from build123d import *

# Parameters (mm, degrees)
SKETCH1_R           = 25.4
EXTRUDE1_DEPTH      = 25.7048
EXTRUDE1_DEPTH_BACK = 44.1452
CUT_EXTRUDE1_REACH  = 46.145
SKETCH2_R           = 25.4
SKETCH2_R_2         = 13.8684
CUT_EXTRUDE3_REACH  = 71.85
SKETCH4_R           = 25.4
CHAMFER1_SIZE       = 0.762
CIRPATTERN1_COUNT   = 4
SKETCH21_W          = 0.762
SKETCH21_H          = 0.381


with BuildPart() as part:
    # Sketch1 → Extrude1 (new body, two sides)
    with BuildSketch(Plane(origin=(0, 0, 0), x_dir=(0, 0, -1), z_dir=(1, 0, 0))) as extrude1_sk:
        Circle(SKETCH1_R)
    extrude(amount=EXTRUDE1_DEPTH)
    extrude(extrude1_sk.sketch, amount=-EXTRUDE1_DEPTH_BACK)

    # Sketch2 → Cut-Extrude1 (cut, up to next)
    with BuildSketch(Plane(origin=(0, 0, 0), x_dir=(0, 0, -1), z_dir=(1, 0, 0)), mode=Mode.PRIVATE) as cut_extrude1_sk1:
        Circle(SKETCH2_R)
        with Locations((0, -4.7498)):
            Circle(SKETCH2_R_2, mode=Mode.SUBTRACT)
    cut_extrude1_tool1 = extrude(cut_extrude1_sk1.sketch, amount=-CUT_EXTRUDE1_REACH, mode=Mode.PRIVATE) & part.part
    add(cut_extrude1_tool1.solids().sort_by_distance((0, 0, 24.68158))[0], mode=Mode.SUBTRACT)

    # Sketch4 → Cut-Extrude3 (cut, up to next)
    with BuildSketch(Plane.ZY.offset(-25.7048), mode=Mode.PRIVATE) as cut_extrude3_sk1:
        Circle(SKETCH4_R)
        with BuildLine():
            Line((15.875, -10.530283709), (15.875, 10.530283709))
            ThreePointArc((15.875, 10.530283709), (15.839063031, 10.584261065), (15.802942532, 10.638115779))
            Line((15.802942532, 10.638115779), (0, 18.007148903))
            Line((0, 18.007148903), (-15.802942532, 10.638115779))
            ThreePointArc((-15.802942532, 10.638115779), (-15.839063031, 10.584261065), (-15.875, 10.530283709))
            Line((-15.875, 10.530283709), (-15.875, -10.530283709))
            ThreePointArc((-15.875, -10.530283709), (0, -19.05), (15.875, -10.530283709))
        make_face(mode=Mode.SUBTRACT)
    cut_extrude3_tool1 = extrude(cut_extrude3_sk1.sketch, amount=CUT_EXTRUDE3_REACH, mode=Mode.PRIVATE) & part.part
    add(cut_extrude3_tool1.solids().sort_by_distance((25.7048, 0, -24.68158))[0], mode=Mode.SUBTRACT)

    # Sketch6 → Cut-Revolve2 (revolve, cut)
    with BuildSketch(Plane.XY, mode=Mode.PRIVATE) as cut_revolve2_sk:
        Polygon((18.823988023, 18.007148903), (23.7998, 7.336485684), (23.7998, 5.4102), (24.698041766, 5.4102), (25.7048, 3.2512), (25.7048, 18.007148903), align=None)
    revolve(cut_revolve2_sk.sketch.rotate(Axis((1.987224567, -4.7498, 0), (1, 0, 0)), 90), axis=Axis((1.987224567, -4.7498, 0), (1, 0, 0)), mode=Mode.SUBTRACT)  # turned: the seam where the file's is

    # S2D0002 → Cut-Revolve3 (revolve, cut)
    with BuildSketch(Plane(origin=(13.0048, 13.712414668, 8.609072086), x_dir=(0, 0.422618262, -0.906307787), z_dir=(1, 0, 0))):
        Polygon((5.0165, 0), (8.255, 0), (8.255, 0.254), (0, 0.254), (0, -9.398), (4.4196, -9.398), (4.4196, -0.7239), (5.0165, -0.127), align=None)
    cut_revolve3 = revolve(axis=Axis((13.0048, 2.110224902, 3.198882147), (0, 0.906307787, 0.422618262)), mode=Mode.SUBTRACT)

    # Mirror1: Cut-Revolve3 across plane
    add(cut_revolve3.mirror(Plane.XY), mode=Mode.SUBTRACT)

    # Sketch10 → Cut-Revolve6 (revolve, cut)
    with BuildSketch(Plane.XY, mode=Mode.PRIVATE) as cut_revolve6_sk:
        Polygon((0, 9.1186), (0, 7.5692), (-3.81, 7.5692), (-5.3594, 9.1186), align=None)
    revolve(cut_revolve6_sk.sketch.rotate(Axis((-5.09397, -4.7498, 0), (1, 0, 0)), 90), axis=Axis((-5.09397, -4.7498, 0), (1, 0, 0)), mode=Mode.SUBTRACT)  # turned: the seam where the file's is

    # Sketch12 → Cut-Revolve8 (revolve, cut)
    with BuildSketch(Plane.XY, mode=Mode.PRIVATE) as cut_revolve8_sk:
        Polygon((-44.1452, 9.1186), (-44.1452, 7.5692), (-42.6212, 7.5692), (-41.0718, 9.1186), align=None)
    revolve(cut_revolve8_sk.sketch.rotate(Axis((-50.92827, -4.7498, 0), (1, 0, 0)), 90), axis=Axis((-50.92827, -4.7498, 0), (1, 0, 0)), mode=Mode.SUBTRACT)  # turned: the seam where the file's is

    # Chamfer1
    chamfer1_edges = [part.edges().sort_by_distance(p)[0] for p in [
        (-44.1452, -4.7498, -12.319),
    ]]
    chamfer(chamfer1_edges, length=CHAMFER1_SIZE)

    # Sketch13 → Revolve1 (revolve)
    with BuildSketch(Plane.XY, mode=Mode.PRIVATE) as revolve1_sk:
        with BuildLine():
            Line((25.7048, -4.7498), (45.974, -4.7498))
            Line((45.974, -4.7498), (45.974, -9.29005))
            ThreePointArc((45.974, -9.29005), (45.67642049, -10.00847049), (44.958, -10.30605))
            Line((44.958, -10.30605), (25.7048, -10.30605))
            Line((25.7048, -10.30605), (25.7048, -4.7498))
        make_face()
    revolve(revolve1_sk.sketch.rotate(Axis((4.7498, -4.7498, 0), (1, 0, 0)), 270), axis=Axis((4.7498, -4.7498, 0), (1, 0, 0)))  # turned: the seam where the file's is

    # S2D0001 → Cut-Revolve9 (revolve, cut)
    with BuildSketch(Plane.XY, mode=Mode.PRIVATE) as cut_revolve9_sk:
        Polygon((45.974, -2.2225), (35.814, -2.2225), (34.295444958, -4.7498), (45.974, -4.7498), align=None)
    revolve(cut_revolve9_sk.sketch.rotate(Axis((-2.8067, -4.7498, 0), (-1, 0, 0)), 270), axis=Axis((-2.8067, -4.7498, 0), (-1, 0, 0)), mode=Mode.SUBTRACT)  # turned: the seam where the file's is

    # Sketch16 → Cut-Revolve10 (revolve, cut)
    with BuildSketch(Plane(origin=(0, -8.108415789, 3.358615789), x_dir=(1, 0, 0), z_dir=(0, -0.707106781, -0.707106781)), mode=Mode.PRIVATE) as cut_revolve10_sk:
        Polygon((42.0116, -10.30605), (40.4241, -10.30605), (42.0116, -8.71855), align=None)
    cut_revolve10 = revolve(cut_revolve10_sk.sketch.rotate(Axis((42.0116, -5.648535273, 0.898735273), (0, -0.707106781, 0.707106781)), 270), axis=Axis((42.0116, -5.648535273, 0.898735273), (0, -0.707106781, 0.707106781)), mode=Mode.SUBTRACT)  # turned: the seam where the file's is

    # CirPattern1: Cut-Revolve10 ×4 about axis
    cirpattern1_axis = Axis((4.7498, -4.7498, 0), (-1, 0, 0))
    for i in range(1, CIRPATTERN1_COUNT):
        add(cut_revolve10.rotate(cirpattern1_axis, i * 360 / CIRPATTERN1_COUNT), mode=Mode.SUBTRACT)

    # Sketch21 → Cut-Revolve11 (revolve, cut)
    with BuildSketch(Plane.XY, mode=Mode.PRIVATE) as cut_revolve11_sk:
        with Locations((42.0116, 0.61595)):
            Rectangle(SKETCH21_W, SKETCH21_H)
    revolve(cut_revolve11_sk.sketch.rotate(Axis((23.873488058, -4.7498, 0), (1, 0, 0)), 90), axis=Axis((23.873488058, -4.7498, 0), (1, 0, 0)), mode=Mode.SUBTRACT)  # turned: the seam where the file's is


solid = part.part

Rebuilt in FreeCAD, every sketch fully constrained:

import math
import FreeCAD as App
import Part
import Sketcher
Q = App.Units.Quantity


def edges_at(feature, points):
    """Names of the edges that pass closest to the given points."""
    edges = feature.Shape.Edges
    near = lambda p: min(range(len(edges)), key=lambda i: edges[i].distToShape(Part.Vertex(*p))[0])
    return sorted({f"Edge{near(p) + 1}" for p in points})


def add_polygon(sketch, points):
    """Adds a closed chain of lines whose ends are joined by coincident constraints."""
    first, n = sketch.GeometryCount, len(points)
    for a, b in zip(points, points[1:] + points[:1]):
        sketch.addGeometry(Part.LineSegment(App.Vector(*a, 0), App.Vector(*b, 0)), False)
    for i in range(n):
        sketch.addConstraint(Sketcher.Constraint("Coincident", first + i, 2, first + (i + 1) % n, 1))

doc = App.newDocument("Part")
body = doc.addObject("PartDesign::Body", "Body")

sketch1 = body.newObject("Sketcher::SketchObject", "Sketch")
sketch1.AttachmentSupport = (doc.getObject("YZ_Plane"), [""])
sketch1.MapMode = "FlatFace"
sketch1.addGeometry(Part.Circle(App.Vector(0, 0, 0), App.Vector(0, 0, 1), 25.4), False)
sketch1.addConstraint([
    Sketcher.Constraint("Coincident", 0, 3, -1, 1),
    Sketcher.Constraint("Diameter", 0, Q("2 in")),
])
pad1 = body.newObject("PartDesign::Pad", "Pad")
pad1.Profile = sketch1
pad1.Type = "TwoLengths"
pad1.Length = Q("1.012 in")
pad1.Length2 = Q("1.738 in")

sketch2 = body.newObject("Sketcher::SketchObject", "Sketch001")
sketch2.AttachmentSupport = (doc.getObject("YZ_Plane"), [""])
sketch2.MapMode = "FlatFace"
sketch2.addGeometry([
    Part.Circle(App.Vector(0, 0, 0), App.Vector(0, 0, 1), 25.4),
    Part.Circle(App.Vector(-4.7498, 0, 0), App.Vector(0, 0, 1), 13.8684),
], False)
sketch2.addConstraint([
    Sketcher.Constraint("Coincident", 0, 3, -1, 1),
    Sketcher.Constraint("PointOnObject", 1, 3, -1),
    Sketcher.Constraint("Diameter", 0, Q("2 in")),
    Sketcher.Constraint("Diameter", 1, Q("1.092 in")),
    Sketcher.Constraint("DistanceX", 1, 3, -1, 1, Q("0.187 in")),
])
pocket1 = body.newObject("PartDesign::Pocket", "Pocket")
pocket1.Profile = sketch2
pocket1.Type = "UpToFirst"

sketch3 = body.newObject("Sketcher::SketchObject", "Sketch002")
sketch3.AttachmentSupport = (doc.getObject("YZ_Plane"), [""])
sketch3.MapMode = "FlatFace"
sketch3.AttachmentOffset = App.Placement(App.Vector(0, 0, 1.012 * 25.4), App.Rotation())
sketch3.addGeometry([
    Part.Circle(App.Vector(0, 0, 0), App.Vector(0, 0, 1), 25.4),
    Part.LineSegment(App.Vector(10.530284, 15.875, 0), App.Vector(-10.530284, 15.875, 0)),
    Part.ArcOfCircle(Part.Circle(App.Vector(0, 0, 0), App.Vector(0, 0, 1), 19.05), math.radians(123.55731), math.radians(236.44269)),
    Part.LineSegment(App.Vector(-10.530284, -15.875, 0), App.Vector(10.530284, -15.875, 0)),
    Part.ArcOfCircle(Part.Circle(App.Vector(-0.000006, 0.000009, 0), App.Vector(0, 0, 1), 19.050011), math.radians(-56.44269), math.radians(-56.052621)),
    Part.LineSegment(App.Vector(10.638116, -15.802943, 0), App.Vector(18.007149, 0, 0)),
    Part.LineSegment(App.Vector(18.007149, 0, 0), App.Vector(10.638116, 15.802943, 0)),
    Part.ArcOfCircle(Part.Circle(App.Vector(-0.000006, -0.000009, 0), App.Vector(0, 0, 1), 19.050011), math.radians(56.052621), math.radians(56.44269)),
], False)
sketch3.addConstraint([
    Sketcher.Constraint("Coincident", 1, 2, 2, 1),
    Sketcher.Constraint("Coincident", 2, 2, 3, 1),
    Sketcher.Constraint("Coincident", 3, 2, 4, 1),
    Sketcher.Constraint("Coincident", 4, 2, 5, 1),
    Sketcher.Constraint("Coincident", 5, 2, 6, 1),
    Sketcher.Constraint("Coincident", 6, 2, 7, 1),
    Sketcher.Constraint("Coincident", 7, 2, 1, 1),
    Sketcher.Constraint("Horizontal", 1),
    Sketcher.Constraint("Horizontal", 3),
    Sketcher.Constraint("Coincident", 0, 3, -1, 1),
    Sketcher.Constraint("Coincident", 2, 3, -1, 1),
    Sketcher.Constraint("Equal", 4, 7),
    Sketcher.Constraint("Symmetric", 1, 2, 3, 2, -1, 1),
    Sketcher.Constraint("Symmetric", 4, 3, 7, 3, -1),
    Sketcher.Constraint("PointOnObject", 5, 2, -1),
    Sketcher.Constraint("Vertical", 4, 2, 6, 2),
    Sketcher.Constraint("Diameter", 0, Q("2 in")),
    Sketcher.Constraint("Radius", 2, Q("0.75 in")),
    Sketcher.Constraint("Angle", 5, Q("65 deg")),
    Sketcher.Constraint("DistanceY", 2, 2, 1, 2, Q("1.25 in")),
    Sketcher.Constraint("Radius", 4, 19.050011),
    Sketcher.Constraint("DistanceX", -1, 1, 5, 2, 18.007149),
    Sketcher.Constraint("DistanceY", 4, 3, 1, 2, 15.874991),
])
pocket2 = body.newObject("PartDesign::Pocket", "Pocket001")
pocket2.Profile = sketch3
pocket2.Type = "UpToFirst"

sketch4 = body.newObject("Sketcher::SketchObject", "Sketch003")
sketch4.AttachmentSupport = (doc.getObject("XY_Plane"), [""])
sketch4.MapMode = "FlatFace"
add_polygon(sketch4, [(18.823988, 18.007149), (23.7998, 7.336486), (23.7998, 5.4102), (24.698042, 5.4102), (25.7048, 3.2512), (25.7048, 18.007149)])
sketch4.addGeometry(Part.LineSegment(App.Vector(18.823988, -4.7498, 0), App.Vector(25.7048, -4.7498, 0)), True)
sketch4.addConstraint([
    Sketcher.Constraint("Vertical", 1),
    Sketcher.Constraint("Horizontal", 2),
    Sketcher.Constraint("Vertical", 4),
    Sketcher.Constraint("Horizontal", 5),
    Sketcher.Constraint("Horizontal", 6),
    Sketcher.Constraint("Parallel", 0, 3),
    Sketcher.Constraint("Vertical", 5, 2, 6, 1),
    Sketcher.Constraint("Vertical", 4, 2, 6, 2),
    Sketcher.Constraint("Angle", 0, Q("-65 deg")),
    Sketcher.Constraint("DistanceY", 6, 1, 1, 2, Q("0.4 in")),
    Sketcher.Constraint("DistanceX", -1, 1, 0, 2, Q("0.937 in")),
    Sketcher.Constraint("DistanceY", -1, 1, 1, 2, Q("0.213 in")),
    Sketcher.Constraint("DistanceX", -1, 1, 3, 2, Q("1.012 in")),
    Sketcher.Constraint("DistanceY", -1, 1, 3, 2, Q("0.128 in")),
    Sketcher.Constraint("DistanceX", 5, 2, 5, 1, 6.880812),
    Sketcher.Constraint("DistanceY", 4, 1, 4, 2, 14.755949),
])
groove = body.newObject("PartDesign::Groove", "Groove")
groove.Profile = sketch4
groove.ReferenceAxis = (sketch4, ["Axis0"])
groove.Angle = 360

sketch5 = body.newObject("Sketcher::SketchObject", "Sketch004")
sketch5.AttachmentSupport = (doc.getObject("YZ_Plane"), [""])
sketch5.MapMode = "FlatFace"
sketch5.AttachmentOffset = App.Placement(App.Vector(0, 0, 0.512 * 25.4), App.Rotation())
add_polygon(sketch5, [(15.832479, 4.062579), (17.201128, 1.127501), (17.431331, 1.234846), (13.942617, 8.716417), (5.194934, 4.637306), (7.062738, 0.631788), (14.924142, 4.297621), (15.717378, 4.008907)])
sketch5.addGeometry(Part.LineSegment(App.Vector(5.194934, 4.637306, 0), App.Vector(13.942617, 8.716417, 0)), True)
sketch5.addConstraint([
    Sketcher.Constraint("Coincident", 8, 1, 3, 2),
    Sketcher.Constraint("Coincident", 8, 2, 2, 2),
    Sketcher.Constraint("Perpendicular", 0, 1),
    Sketcher.Constraint("Perpendicular", 1, 2),
    Sketcher.Constraint("Perpendicular", 2, 3),
    Sketcher.Constraint("Perpendicular", 3, 4),
    Sketcher.Constraint("Perpendicular", 4, 5),
    Sketcher.Constraint("Parallel", 5, 7),
    Sketcher.Constraint("Angle", 0, Q("-65 deg")),
    Sketcher.Constraint("Angle", 6, Q("-20 deg")),
    Sketcher.Constraint("Distance", 1, Q("0.01 in")),
    Sketcher.Constraint("Distance", 3, Q("0.38 in")),
    Sketcher.Constraint("Distance", 2, Q("0.325 in")),
    Sketcher.Constraint("Distance", 4, Q("0.174 in")),
    Sketcher.Constraint("Distance", 7, Q("0.005 in")),
    Sketcher.Constraint("Distance", 0, Q("0.1275 in")),
    Sketcher.Constraint("DistanceY", -1, 1, 0, 2, 1.127501),
    Sketcher.Constraint("DistanceX", -1, 1, 0, 2, 17.201128),
])
groove2 = body.newObject("PartDesign::Groove", "Groove001")
groove2.Profile = sketch5
groove2.ReferenceAxis = (sketch5, ["Axis0"])
groove2.Angle = 360
doc.recompute()

mirrored = body.newObject("PartDesign::Mirrored", "Mirrored")
mirrored.Originals = [groove2]
mirrored.MirrorPlane = (doc.getObject("XY_Plane"), [""])
body.Tip = mirrored

sketch6 = body.newObject("Sketcher::SketchObject", "Sketch005")
sketch6.AttachmentSupport = (doc.getObject("XY_Plane"), [""])
sketch6.MapMode = "FlatFace"
add_polygon(sketch6, [(0, 7.5692), (0, 9.1186), (-5.3594, 9.1186), (-3.81, 7.5692)])
sketch6.addGeometry(Part.LineSegment(App.Vector(-5.3594, -4.7498, 0), App.Vector(0, -4.7498, 0)), True)
sketch6.addConstraint([
    Sketcher.Constraint("Vertical", 0),
    Sketcher.Constraint("Horizontal", 1),
    Sketcher.Constraint("Horizontal", 3),
    Sketcher.Constraint("Horizontal", 4),
    Sketcher.Constraint("PointOnObject", 0, 2, -2),
    Sketcher.Constraint("PointOnObject", 4, 2, -2),
    Sketcher.Constraint("Vertical", 1, 2, 4, 1),
    Sketcher.Constraint("Angle", 2, Q("-45 deg")),
    Sketcher.Constraint("DistanceX", 3, 1, 3, 2, Q("0.15 in")),
    Sketcher.Constraint("DistanceX", 1, 2, 1, 1, Q("0.211 in")),
    Sketcher.Constraint("DistanceY", -1, 1, 0, 2, Q("0.359 in")),
    Sketcher.Constraint("DistanceY", 4, 1, -1, 1, Q("0.187 in")),
])
groove3 = body.newObject("PartDesign::Groove", "Groove002")
groove3.Profile = sketch6
groove3.ReferenceAxis = (sketch6, ["Axis0"])
groove3.Angle = 360

sketch7 = body.newObject("Sketcher::SketchObject", "Sketch006")
sketch7.AttachmentSupport = (doc.getObject("XY_Plane"), [""])
sketch7.MapMode = "FlatFace"
add_polygon(sketch7, [(-44.1452, 9.1186), (-44.1452, 7.5692), (-42.6212, 7.5692), (-41.0718, 9.1186)])
sketch7.addGeometry(Part.LineSegment(App.Vector(-44.1452, -4.7498, 0), App.Vector(-41.0718, -4.7498, 0)), True)
sketch7.addConstraint([
    Sketcher.Constraint("Vertical", 0),
    Sketcher.Constraint("Horizontal", 1),
    Sketcher.Constraint("Horizontal", 3),
    Sketcher.Constraint("Horizontal", 4),
    Sketcher.Constraint("Vertical", 3, 2, 4, 1),
    Sketcher.Constraint("Vertical", 2, 2, 4, 2),
    Sketcher.Constraint("Angle", 2, Q("45 deg")),
    Sketcher.Constraint("DistanceX", 1, 1, 1, 2, Q("0.06 in")),
    Sketcher.Constraint("DistanceX", 3, 2, 3, 1, Q("0.121 in")),
    Sketcher.Constraint("DistanceX", 0, 2, -1, 1, Q("1.738 in")),
    Sketcher.Constraint("DistanceY", -1, 1, 0, 2, Q("0.298 in")),
    Sketcher.Constraint("DistanceY", 4, 1, -1, 1, Q("0.187 in")),
])
groove4 = body.newObject("PartDesign::Groove", "Groove003")
groove4.Profile = sketch7
groove4.ReferenceAxis = (sketch7, ["Axis0"])
groove4.Angle = 360
doc.recompute()

chamfer = body.newObject("PartDesign::Chamfer", "Chamfer")
chamfer.Base = (groove4, edges_at(groove4, [(-44.145, -4.75, -12.319)]))
chamfer.Size = Q("0.03 in")

sketch8 = body.newObject("Sketcher::SketchObject", "Sketch007")
sketch8.AttachmentSupport = (doc.getObject("XY_Plane"), [""])
sketch8.MapMode = "FlatFace"
sketch8.addGeometry([
    Part.LineSegment(App.Vector(45.974, -4.7498, 0), App.Vector(25.7048, -4.7498, 0)),
    Part.LineSegment(App.Vector(25.7048, -4.7498, 0), App.Vector(25.7048, -10.30605, 0)),
    Part.LineSegment(App.Vector(25.7048, -10.30605, 0), App.Vector(44.958, -10.30605, 0)),
    Part.ArcOfCircle(Part.Circle(App.Vector(44.958, -9.29005, 0), App.Vector(0, 0, 1), 1.016), math.radians(-90), math.radians(0)),
    Part.LineSegment(App.Vector(45.974, -9.29005, 0), App.Vector(45.974, -4.7498, 0)),
], False)
sketch8.addGeometry(Part.LineSegment(App.Vector(25.7048, -4.7498, 0), App.Vector(45.974, -4.7498, 0)), True)
sketch8.addConstraint([
    Sketcher.Constraint("Coincident", 0, 2, 1, 1),
    Sketcher.Constraint("Coincident", 1, 2, 2, 1),
    Sketcher.Constraint("Tangent", 2, 2, 3, 1),
    Sketcher.Constraint("Tangent", 3, 2, 4, 1),
    Sketcher.Constraint("Coincident", 4, 2, 0, 1),
    Sketcher.Constraint("Horizontal", 0),
    Sketcher.Constraint("Vertical", 1),
    Sketcher.Constraint("Horizontal", 2),
    Sketcher.Constraint("Vertical", 4),
    Sketcher.Constraint("Horizontal", 5),
    Sketcher.Constraint("Coincident", 5, 1, 0, 2),
    Sketcher.Constraint("Vertical", 3, 2, 5, 2),
    Sketcher.Constraint("Radius", 3, Q("0.04 in")),
    Sketcher.Constraint("DistanceX", 0, 2, 0, 1, Q("0.798 in")),
    Sketcher.Constraint("DistanceY", 1, 2, 1, 1, Q("0.21875 in")),
    Sketcher.Constraint("DistanceX", -1, 1, 3, 3, Q("1.77 in")),
    Sketcher.Constraint("DistanceY", 0, 2, -1, 1, Q("0.187 in")),
])
revolution = body.newObject("PartDesign::Revolution", "Revolution")
revolution.Profile = sketch8
revolution.ReferenceAxis = (sketch8, ["Axis0"])
revolution.Angle = 360

sketch9 = body.newObject("Sketcher::SketchObject", "Sketch008")
sketch9.AttachmentSupport = (doc.getObject("XY_Plane"), [""])
sketch9.MapMode = "FlatFace"
add_polygon(sketch9, [(45.974, -2.2225), (35.814, -2.2225), (34.295445, -4.7498), (45.974, -4.7498)])
sketch9.addGeometry(Part.LineSegment(App.Vector(45.974, -4.7498, 0), App.Vector(34.295445, -4.7498, 0)), True)
sketch9.addConstraint([
    Sketcher.Constraint("Horizontal", 0),
    Sketcher.Constraint("Horizontal", 2),
    Sketcher.Constraint("Vertical", 3),
    Sketcher.Constraint("Horizontal", 4),
    Sketcher.Constraint("Coincident", 4, 1, 2, 2),
    Sketcher.Constraint("Equal", 2, 4),
    Sketcher.Constraint("DistanceX", 0, 2, 0, 1, Q("0.4 in")),
    Sketcher.Constraint("Angle", 1, Q("-121 deg")),
    Sketcher.Constraint("DistanceX", -1, 1, 0, 2, Q("1.41 in")),
    Sketcher.Constraint("DistanceY", 3, 1, 3, 2, Q("0.0995 in")),
    Sketcher.Constraint("DistanceY", 1, 2, -1, 1, Q("0.187 in")),
])
groove5 = body.newObject("PartDesign::Groove", "Groove004")
groove5.Profile = sketch9
groove5.ReferenceAxis = (sketch9, ["Axis0"])
groove5.Angle = 360

sketch10 = body.newObject("Sketcher::SketchObject", "Sketch009")
sketch10.Placement = App.Placement(App.Vector(0, -8.108416, 3.358616), App.Rotation(App.Vector(1, 0, 0), App.Vector(0, -0.707106781, 0.707106781), App.Vector(0, -0.707106781, -0.707106781), "ZXY"))
add_polygon(sketch10, [(40.4241, -10.30605), (42.0116, -10.30605), (42.0116, -8.71855)])
sketch10.addGeometry(Part.LineSegment(App.Vector(42.0116, -10.30605, 0), App.Vector(42.0116, -8.71855, 0)), True)
sketch10.addConstraint([
    Sketcher.Constraint("Horizontal", 0),
    Sketcher.Constraint("Vertical", 1),
    Sketcher.Constraint("Vertical", 3),
    Sketcher.Constraint("Coincident", 3, 1, 0, 2),
    Sketcher.Constraint("Equal", 0, 1),
    Sketcher.Constraint("Equal", 1, 3),
    Sketcher.Constraint("DistanceX", 0, 1, 0, 2, Q("0.0625 in")),
    Sketcher.Constraint("DistanceX", -1, 1, 0, 2, Q("1.654 in")),
    Sketcher.Constraint("DistanceY", 0, 2, -1, 1, 10.30605),
])
groove6 = body.newObject("PartDesign::Groove", "Groove005")
groove6.Profile = sketch10
groove6.ReferenceAxis = (sketch10, ["Axis0"])
groove6.Angle = 360
doc.recompute()

datumline = body.newObject("PartDesign::Line", "DatumLine")
datumline.Placement = App.Placement(App.Vector(0, -4.7498, 0), App.Rotation(App.Vector(0, 0, 1), App.Vector(-1, 0, 0)))
polarpattern = body.newObject("PartDesign::PolarPattern", "PolarPattern")
polarpattern.Originals = [groove6]
polarpattern.Axis = (datumline, [""])
polarpattern.Angle = 360
polarpattern.Occurrences = 4
body.Tip = polarpattern

sketch11 = body.newObject("Sketcher::SketchObject", "Sketch010")
sketch11.AttachmentSupport = (doc.getObject("XY_Plane"), [""])
sketch11.MapMode = "FlatFace"
add_polygon(sketch11, [(41.6306, 0.80645), (41.6306, 0.42545), (42.3926, 0.42545), (42.3926, 0.80645)])
sketch11.addGeometry(Part.LineSegment(App.Vector(41.6306, -4.7498, 0), App.Vector(42.3926, -4.7498, 0)), True)
sketch11.addConstraint([
    Sketcher.Constraint("Vertical", 0),
    Sketcher.Constraint("Horizontal", 1),
    Sketcher.Constraint("Vertical", 2),
    Sketcher.Constraint("Horizontal", 3),
    Sketcher.Constraint("Horizontal", 4),
    Sketcher.Constraint("Vertical", 3, 2, 4, 1),
    Sketcher.Constraint("Vertical", 2, 2, 4, 2),
    Sketcher.Constraint("DistanceX", 1, 1, 1, 2, Q("0.03 in")),
    Sketcher.Constraint("DistanceY", 0, 2, 0, 1, Q("0.015 in")),
    Sketcher.Constraint("DistanceX", -1, 1, 0, 2, Q("1.639 in")),
    Sketcher.Constraint("DistanceY", 4, 1, -1, 1, Q("0.187 in")),
    Sketcher.Constraint("DistanceY", 4, 1, 3, 2, Q("0.21875 in")),
])
groove7 = body.newObject("PartDesign::Groove", "Groove006")
groove7.Profile = sketch11
groove7.ReferenceAxis = (sketch11, ["Axis0"])
groove7.Angle = 360

doc.recompute()
